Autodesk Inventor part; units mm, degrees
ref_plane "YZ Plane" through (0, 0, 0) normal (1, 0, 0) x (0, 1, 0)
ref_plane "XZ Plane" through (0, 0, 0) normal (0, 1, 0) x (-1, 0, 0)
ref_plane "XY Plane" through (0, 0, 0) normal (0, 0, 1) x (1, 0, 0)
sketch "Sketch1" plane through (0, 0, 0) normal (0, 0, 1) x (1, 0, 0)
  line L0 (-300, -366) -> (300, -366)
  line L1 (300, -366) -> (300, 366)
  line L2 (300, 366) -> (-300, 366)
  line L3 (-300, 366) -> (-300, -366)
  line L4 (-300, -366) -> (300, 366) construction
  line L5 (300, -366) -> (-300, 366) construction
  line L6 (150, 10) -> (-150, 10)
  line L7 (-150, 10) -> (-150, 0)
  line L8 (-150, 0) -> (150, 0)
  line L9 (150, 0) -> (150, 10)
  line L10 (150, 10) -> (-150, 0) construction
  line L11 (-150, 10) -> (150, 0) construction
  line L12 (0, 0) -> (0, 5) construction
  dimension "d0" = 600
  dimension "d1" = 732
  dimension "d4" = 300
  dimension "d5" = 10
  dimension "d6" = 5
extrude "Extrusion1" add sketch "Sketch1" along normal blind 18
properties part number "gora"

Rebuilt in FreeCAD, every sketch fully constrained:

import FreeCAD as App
import Part
import Sketcher

V = App.Vector


def add_polygon(sketch, points):
    """Adds a closed chain of lines whose ends are joined by coincident constraints."""
    first, n = sketch.GeometryCount, len(points)
    for a, b in zip(points, points[1:] + points[:1]):
        sketch.addGeometry(Part.LineSegment(App.Vector(*a, 0), App.Vector(*b, 0)), False)
    for i in range(n):
        sketch.addConstraint(Sketcher.Constraint("Coincident", first + i, 2, first + (i + 1) % n, 1))

doc = App.newDocument("Part")
body = doc.addObject("PartDesign::Body", "Body")

sketch1 = doc.addObject("Sketcher::SketchObject", "Sketch")
body.addObject(sketch1)
sketch1.AttachmentSupport = (doc.XY_Plane, [""])
sketch1.MapMode = "FlatFace"
add_polygon(sketch1, [(-300, 366), (-300, -366), (300, -366), (300, 366)])
add_polygon(sketch1, [(-150, 10), (150, 10), (150, 0), (-150, 0)])
sketch1.addConstraint([
    Sketcher.Constraint("Vertical", 0),
    Sketcher.Constraint("Horizontal", 1),
    Sketcher.Constraint("Vertical", 2),
    Sketcher.Constraint("Horizontal", 3),
    Sketcher.Constraint("Horizontal", 4),
    Sketcher.Constraint("Vertical", 5),
    Sketcher.Constraint("Horizontal", 6),
    Sketcher.Constraint("Vertical", 7),
    Sketcher.Constraint("Symmetric", 0, 2, 2, 2, -1, 1),
    Sketcher.Constraint("Symmetric", 5, 2, 6, 2, -1, 1),
    Sketcher.Constraint("DistanceX", 1, 1, 1, 2, 600.0),
    Sketcher.Constraint("DistanceX", 4, 1, 4, 2, 300.0),
    Sketcher.Constraint("DistanceY", 0, 2, 0, 1, 732.0),
    Sketcher.Constraint("DistanceY", 5, 2, 5, 1, 10.0),
])
pad1 = doc.addObject("PartDesign::Pad", "Pad")
body.addObject(pad1)
pad1.Profile = sketch1
pad1.Length = 18

doc.recompute()
